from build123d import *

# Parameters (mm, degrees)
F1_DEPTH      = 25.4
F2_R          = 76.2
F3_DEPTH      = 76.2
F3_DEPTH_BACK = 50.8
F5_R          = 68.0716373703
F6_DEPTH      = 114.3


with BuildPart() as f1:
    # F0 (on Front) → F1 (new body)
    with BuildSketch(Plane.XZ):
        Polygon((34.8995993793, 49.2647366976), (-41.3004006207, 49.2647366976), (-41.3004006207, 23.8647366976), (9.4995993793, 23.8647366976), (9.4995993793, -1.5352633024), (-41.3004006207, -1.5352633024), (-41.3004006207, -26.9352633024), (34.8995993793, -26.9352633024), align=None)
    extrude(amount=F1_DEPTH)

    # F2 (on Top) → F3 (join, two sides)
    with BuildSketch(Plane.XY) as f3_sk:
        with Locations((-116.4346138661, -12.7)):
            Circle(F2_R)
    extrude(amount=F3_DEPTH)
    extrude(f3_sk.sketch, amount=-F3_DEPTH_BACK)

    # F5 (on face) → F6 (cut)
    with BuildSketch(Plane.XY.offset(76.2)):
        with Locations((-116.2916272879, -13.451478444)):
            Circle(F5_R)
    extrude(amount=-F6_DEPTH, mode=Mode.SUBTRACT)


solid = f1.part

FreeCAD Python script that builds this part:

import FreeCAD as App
import Part
import Sketcher
Q = App.Units.Quantity

doc = App.newDocument("Part")
body = doc.addObject("PartDesign::Body", "Body")

sketch1 = doc.addObject("Sketcher::SketchObject", "Sketch")
body.addObject(sketch1)
sketch1.AttachmentSupport = (doc.XZ_Plane, [""])
sketch1.MapMode = "FlatFace"
sketch1.addGeometry(Part.LineSegment(App.Vector(35, 49, 0), App.Vector(-41, 49, 0)), False)
sketch1.addGeometry(Part.LineSegment(App.Vector(-41, 49, 0), App.Vector(-41, 24, 0)), False)
sketch1.addGeometry(Part.LineSegment(App.Vector(-41, 24, 0), App.Vector(9, 24, 0)), False)
sketch1.addGeometry(Part.LineSegment(App.Vector(9, 24, 0), App.Vector(9, -2, 0)), False)
sketch1.addGeometry(Part.LineSegment(App.Vector(9, -2, 0), App.Vector(-41, -2, 0)), False)
sketch1.addGeometry(Part.LineSegment(App.Vector(-41, -2, 0), App.Vector(-41, -27, 0)), False)
sketch1.addGeometry(Part.LineSegment(App.Vector(-41, -27, 0), App.Vector(35, -27, 0)), False)
sketch1.addGeometry(Part.LineSegment(App.Vector(35, -27, 0), App.Vector(35, 49, 0)), False)
sketch1.addConstraint(Sketcher.Constraint("Coincident", 0, 2, 1, 1))
sketch1.addConstraint(Sketcher.Constraint("Coincident", 1, 2, 2, 1))
sketch1.addConstraint(Sketcher.Constraint("Coincident", 2, 2, 3, 1))
sketch1.addConstraint(Sketcher.Constraint("Coincident", 3, 2, 4, 1))
sketch1.addConstraint(Sketcher.Constraint("Coincident", 4, 2, 5, 1))
sketch1.addConstraint(Sketcher.Constraint("Coincident", 5, 2, 6, 1))
sketch1.addConstraint(Sketcher.Constraint("Coincident", 6, 2, 7, 1))
sketch1.addConstraint(Sketcher.Constraint("Coincident", 7, 2, 0, 1))
sketch1.addConstraint(Sketcher.Constraint("Horizontal", 0))
sketch1.addConstraint(Sketcher.Constraint("Vertical", 1))
sketch1.addConstraint(Sketcher.Constraint("Horizontal", 2))
sketch1.addConstraint(Sketcher.Constraint("Vertical", 3))
sketch1.addConstraint(Sketcher.Constraint("Horizontal", 4))
sketch1.addConstraint(Sketcher.Constraint("Vertical", 5))
sketch1.addConstraint(Sketcher.Constraint("Horizontal", 6))
sketch1.addConstraint(Sketcher.Constraint("Vertical", 7))
sketch1.addConstraint(Sketcher.Constraint("Vertical", 1, 2, 4, 2))
sketch1.addConstraint(Sketcher.Constraint("Equal", 1, 3))
sketch1.addConstraint(Sketcher.Constraint("Equal", 3, 5))
sketch1.addConstraint(Sketcher.Constraint("Equal", 6, 7))
sketch1.addConstraint(Sketcher.Constraint("DistanceX", 0, 2, 0, 1, Q("3 in")))
sketch1.addConstraint(Sketcher.Constraint("DistanceX", 2, 1, 2, 2, Q("2 in")))
sketch1.addConstraint(Sketcher.Constraint("DistanceX", 0, 2, -1, 1, Q("1.626 in")))
sketch1.addConstraint(Sketcher.Constraint("DistanceY", -1, 1, 0, 2, 49.264737))
pad1 = doc.addObject("PartDesign::Pad", "Pad")
body.addObject(pad1)
pad1.Profile = sketch1
pad1.Length = Q("1 in")

sketch2 = doc.addObject("Sketcher::SketchObject", "Sketch001")
body.addObject(sketch2)
sketch2.AttachmentSupport = (doc.XY_Plane, [""])
sketch2.MapMode = "FlatFace"
sketch2.addGeometry(Part.Circle(App.Vector(-116, -13, 0), App.Vector(0, 0, 1), 76), False)
sketch2.addConstraint(Sketcher.Constraint("Diameter", 0, Q("6 in")))
sketch2.addConstraint(Sketcher.Constraint("DistanceY", 0, 3, -1, 1, Q("0.5 in")))
sketch2.addConstraint(Sketcher.Constraint("DistanceX", 0, 3, -1, 1, 116.434614))
pad2 = doc.addObject("PartDesign::Pad", "Pad001")
body.addObject(pad2)
pad2.Profile = sketch2
pad2.Type = "TwoLengths"
pad2.Length = Q("3 in")
pad2.Length2 = Q("2 in")

sketch3 = doc.addObject("Sketcher::SketchObject", "Sketch002")
body.addObject(sketch3)
sketch3.AttachmentSupport = (doc.XY_Plane, [""])
sketch3.MapMode = "FlatFace"
sketch3.AttachmentOffset = App.Placement(App.Vector(0, 0, 3 * 25.4), App.Rotation())
sketch3.addGeometry(Part.Circle(App.Vector(-116, -13, 0), App.Vector(0, 0, 1), 68), False)
sketch3.addConstraint(Sketcher.Constraint("Diameter", 0, 136.143275))
sketch3.addConstraint(Sketcher.Constraint("DistanceY", 0, 3, -1, 1, 13.451478))
sketch3.addConstraint(Sketcher.Constraint("DistanceX", 0, 3, -1, 1, 116.291627))
pocket1 = doc.addObject("PartDesign::Pocket", "Pocket")
body.addObject(pocket1)
pocket1.Profile = sketch3
pocket1.Length = Q("4.5 in")

doc.recompute()
